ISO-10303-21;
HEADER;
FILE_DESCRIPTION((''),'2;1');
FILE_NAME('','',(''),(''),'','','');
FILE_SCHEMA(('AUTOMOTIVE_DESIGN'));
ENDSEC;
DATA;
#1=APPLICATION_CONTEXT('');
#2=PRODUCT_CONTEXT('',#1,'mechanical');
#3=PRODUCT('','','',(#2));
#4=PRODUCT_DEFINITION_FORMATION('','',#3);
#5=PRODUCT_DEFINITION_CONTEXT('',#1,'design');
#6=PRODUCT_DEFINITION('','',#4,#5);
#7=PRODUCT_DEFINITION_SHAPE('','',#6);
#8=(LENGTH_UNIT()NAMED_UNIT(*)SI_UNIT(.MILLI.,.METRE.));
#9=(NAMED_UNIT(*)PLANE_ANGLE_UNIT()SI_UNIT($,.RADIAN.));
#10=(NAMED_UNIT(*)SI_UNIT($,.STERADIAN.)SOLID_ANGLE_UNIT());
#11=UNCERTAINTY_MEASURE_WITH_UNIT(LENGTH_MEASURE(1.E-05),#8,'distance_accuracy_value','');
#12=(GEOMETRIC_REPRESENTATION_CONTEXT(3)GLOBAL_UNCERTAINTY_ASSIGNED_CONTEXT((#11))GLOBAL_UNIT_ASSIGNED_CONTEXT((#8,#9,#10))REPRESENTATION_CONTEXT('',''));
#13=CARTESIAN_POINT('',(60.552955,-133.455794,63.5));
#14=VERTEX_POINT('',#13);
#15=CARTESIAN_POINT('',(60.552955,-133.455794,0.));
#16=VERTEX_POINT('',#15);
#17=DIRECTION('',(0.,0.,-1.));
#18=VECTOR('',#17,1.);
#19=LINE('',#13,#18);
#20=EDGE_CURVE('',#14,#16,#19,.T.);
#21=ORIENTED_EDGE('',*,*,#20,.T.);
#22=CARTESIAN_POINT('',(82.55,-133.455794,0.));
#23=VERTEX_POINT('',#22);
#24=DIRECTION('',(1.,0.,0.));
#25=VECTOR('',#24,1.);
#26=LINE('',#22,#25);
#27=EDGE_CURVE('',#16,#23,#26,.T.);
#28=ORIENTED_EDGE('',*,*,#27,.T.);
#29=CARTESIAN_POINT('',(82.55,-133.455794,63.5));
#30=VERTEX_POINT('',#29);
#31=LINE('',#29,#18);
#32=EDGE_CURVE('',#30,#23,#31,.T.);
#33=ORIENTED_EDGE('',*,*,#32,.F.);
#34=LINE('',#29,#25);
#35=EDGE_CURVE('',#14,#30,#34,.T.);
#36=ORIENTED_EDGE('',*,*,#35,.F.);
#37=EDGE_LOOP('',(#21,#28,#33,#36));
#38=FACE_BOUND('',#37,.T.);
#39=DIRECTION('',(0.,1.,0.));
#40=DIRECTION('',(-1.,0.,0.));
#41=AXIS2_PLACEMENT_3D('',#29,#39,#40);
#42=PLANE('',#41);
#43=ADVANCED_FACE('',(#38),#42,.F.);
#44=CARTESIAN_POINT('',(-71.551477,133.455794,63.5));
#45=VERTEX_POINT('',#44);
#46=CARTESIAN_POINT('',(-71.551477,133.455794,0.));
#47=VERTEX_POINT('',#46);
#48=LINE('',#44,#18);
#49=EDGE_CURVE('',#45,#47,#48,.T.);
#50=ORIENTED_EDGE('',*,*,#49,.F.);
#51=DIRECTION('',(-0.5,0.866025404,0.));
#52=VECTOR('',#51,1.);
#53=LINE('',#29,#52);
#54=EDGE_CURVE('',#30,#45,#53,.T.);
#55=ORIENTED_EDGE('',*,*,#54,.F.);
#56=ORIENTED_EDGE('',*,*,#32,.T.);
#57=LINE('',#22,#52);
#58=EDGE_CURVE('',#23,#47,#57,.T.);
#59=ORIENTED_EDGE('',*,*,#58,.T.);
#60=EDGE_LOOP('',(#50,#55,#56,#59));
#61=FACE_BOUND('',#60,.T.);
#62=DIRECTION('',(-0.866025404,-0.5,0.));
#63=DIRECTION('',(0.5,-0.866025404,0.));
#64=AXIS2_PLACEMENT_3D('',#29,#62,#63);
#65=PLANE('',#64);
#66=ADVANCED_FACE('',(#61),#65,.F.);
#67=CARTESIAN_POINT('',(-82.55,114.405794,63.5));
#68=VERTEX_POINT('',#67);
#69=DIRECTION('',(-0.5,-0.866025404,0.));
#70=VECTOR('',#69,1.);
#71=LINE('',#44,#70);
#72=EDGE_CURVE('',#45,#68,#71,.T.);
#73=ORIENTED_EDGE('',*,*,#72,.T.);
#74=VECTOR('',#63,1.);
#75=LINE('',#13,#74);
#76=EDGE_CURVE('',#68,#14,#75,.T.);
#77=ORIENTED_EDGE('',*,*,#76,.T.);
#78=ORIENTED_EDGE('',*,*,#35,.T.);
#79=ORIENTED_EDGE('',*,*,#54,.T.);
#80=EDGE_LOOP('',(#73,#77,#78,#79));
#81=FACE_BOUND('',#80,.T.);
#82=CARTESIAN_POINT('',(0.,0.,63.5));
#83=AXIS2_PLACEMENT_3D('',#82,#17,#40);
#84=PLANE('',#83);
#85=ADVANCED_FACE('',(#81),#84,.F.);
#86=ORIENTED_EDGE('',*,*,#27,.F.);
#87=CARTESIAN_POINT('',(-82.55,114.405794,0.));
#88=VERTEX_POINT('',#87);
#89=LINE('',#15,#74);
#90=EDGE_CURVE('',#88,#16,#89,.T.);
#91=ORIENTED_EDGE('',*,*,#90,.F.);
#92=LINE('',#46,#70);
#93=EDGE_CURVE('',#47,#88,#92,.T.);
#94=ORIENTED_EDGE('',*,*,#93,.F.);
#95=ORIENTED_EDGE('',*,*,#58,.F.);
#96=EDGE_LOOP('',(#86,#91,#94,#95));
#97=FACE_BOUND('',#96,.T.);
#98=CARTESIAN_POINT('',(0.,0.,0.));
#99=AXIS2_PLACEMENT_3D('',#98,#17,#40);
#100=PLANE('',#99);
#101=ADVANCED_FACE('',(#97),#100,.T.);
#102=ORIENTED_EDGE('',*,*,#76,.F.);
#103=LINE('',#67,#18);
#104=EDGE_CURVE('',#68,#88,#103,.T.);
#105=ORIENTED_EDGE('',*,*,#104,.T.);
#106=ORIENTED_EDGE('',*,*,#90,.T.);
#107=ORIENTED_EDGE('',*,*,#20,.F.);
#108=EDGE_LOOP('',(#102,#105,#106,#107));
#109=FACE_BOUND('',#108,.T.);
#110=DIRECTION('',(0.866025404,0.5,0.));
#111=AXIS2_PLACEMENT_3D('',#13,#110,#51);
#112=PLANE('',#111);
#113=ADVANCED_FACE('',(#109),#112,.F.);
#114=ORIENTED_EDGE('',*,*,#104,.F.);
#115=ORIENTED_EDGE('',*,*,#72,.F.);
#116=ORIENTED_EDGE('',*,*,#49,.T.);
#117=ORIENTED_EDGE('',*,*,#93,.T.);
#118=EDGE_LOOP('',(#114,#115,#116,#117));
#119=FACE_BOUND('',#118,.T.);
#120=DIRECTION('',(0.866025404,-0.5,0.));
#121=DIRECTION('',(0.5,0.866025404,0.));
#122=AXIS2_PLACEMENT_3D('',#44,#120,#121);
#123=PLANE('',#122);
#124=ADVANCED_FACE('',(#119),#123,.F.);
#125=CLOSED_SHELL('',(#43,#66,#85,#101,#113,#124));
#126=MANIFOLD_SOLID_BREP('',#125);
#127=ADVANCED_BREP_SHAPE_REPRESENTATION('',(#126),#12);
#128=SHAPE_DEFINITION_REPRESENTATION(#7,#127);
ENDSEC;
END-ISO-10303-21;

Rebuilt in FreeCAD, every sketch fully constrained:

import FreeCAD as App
import Part
import Sketcher

V = App.Vector
Q = App.Units.Quantity


def add_polygon(sketch, points):
    """Adds a closed chain of lines whose ends are joined by coincident constraints."""
    first, n = sketch.GeometryCount, len(points)
    for a, b in zip(points, points[1:] + points[:1]):
        sketch.addGeometry(Part.LineSegment(App.Vector(*a, 0), App.Vector(*b, 0)), False)
    for i in range(n):
        sketch.addConstraint(Sketcher.Constraint("Coincident", first + i, 2, first + (i + 1) % n, 1))

doc = App.newDocument("Part")
body = doc.addObject("PartDesign::Body", "Body")

# Sketch on XY plane
sketch1 = body.newObject("Sketcher::SketchObject", "Sketch")
sketch1.AttachmentSupport = (doc.getObject("XY_Plane"), [""])
sketch1.MapMode = "FlatFace"
add_polygon(sketch1, [(83, -133), (-72, 133), (-83, 114), (61, -133)])  # lines 0-3
sketch1.addConstraint([
    Sketcher.Constraint("Horizontal", 3),
    Sketcher.Constraint("Parallel", 0, 2),
    Sketcher.Constraint("Angle", 0, Q("120 deg")),
    Sketcher.Constraint("Angle", 1, Q("-120 deg")),
    Sketcher.Constraint("DistanceX", 1, 2, 3, 2, Q("6.5 in")),
    Sketcher.Constraint("DistanceX", 1, 2, -1, 1, Q("3.25 in")),
    Sketcher.Constraint("DistanceY", 1, 2, 0, 2, Q("0.75 in")),
    Sketcher.Constraint("DistanceY", -1, 1, 0, 2, Q("133.455794 mm")),
])
pad1 = body.newObject("PartDesign::Pad", "Pad")
pad1.Profile = sketch1
pad1.Length = Q("2.5 in")

doc.recompute()
